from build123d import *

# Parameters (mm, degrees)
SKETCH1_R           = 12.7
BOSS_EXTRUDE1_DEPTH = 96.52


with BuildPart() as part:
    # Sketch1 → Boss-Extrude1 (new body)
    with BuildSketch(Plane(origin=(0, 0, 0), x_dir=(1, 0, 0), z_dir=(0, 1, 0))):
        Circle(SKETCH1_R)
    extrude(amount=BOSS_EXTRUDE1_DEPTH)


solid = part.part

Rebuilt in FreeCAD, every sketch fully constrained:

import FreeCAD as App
import Part
import Sketcher
Q = App.Units.Quantity

doc = App.newDocument("Part")
body = doc.addObject("PartDesign::Body", "Body")

sketch1 = body.newObject("Sketcher::SketchObject", "Sketch")
sketch1.AttachmentSupport = (doc.getObject("XZ_Plane"), [""])
sketch1.MapMode = "FlatFace"
sketch1.addGeometry(Part.Circle(App.Vector(0, 0, 0), App.Vector(0, 0, 1), 12.7), False)
sketch1.addConstraint(Sketcher.Constraint("Coincident", 0, 3, -1, 1))
sketch1.addConstraint(Sketcher.Constraint("Diameter", 0, Q("1 in")))
pad1 = body.newObject("PartDesign::Pad", "Pad")
pad1.Profile = sketch1
pad1.Length = Q("3.8 in")
pad1.Reversed = True

doc.recompute()
